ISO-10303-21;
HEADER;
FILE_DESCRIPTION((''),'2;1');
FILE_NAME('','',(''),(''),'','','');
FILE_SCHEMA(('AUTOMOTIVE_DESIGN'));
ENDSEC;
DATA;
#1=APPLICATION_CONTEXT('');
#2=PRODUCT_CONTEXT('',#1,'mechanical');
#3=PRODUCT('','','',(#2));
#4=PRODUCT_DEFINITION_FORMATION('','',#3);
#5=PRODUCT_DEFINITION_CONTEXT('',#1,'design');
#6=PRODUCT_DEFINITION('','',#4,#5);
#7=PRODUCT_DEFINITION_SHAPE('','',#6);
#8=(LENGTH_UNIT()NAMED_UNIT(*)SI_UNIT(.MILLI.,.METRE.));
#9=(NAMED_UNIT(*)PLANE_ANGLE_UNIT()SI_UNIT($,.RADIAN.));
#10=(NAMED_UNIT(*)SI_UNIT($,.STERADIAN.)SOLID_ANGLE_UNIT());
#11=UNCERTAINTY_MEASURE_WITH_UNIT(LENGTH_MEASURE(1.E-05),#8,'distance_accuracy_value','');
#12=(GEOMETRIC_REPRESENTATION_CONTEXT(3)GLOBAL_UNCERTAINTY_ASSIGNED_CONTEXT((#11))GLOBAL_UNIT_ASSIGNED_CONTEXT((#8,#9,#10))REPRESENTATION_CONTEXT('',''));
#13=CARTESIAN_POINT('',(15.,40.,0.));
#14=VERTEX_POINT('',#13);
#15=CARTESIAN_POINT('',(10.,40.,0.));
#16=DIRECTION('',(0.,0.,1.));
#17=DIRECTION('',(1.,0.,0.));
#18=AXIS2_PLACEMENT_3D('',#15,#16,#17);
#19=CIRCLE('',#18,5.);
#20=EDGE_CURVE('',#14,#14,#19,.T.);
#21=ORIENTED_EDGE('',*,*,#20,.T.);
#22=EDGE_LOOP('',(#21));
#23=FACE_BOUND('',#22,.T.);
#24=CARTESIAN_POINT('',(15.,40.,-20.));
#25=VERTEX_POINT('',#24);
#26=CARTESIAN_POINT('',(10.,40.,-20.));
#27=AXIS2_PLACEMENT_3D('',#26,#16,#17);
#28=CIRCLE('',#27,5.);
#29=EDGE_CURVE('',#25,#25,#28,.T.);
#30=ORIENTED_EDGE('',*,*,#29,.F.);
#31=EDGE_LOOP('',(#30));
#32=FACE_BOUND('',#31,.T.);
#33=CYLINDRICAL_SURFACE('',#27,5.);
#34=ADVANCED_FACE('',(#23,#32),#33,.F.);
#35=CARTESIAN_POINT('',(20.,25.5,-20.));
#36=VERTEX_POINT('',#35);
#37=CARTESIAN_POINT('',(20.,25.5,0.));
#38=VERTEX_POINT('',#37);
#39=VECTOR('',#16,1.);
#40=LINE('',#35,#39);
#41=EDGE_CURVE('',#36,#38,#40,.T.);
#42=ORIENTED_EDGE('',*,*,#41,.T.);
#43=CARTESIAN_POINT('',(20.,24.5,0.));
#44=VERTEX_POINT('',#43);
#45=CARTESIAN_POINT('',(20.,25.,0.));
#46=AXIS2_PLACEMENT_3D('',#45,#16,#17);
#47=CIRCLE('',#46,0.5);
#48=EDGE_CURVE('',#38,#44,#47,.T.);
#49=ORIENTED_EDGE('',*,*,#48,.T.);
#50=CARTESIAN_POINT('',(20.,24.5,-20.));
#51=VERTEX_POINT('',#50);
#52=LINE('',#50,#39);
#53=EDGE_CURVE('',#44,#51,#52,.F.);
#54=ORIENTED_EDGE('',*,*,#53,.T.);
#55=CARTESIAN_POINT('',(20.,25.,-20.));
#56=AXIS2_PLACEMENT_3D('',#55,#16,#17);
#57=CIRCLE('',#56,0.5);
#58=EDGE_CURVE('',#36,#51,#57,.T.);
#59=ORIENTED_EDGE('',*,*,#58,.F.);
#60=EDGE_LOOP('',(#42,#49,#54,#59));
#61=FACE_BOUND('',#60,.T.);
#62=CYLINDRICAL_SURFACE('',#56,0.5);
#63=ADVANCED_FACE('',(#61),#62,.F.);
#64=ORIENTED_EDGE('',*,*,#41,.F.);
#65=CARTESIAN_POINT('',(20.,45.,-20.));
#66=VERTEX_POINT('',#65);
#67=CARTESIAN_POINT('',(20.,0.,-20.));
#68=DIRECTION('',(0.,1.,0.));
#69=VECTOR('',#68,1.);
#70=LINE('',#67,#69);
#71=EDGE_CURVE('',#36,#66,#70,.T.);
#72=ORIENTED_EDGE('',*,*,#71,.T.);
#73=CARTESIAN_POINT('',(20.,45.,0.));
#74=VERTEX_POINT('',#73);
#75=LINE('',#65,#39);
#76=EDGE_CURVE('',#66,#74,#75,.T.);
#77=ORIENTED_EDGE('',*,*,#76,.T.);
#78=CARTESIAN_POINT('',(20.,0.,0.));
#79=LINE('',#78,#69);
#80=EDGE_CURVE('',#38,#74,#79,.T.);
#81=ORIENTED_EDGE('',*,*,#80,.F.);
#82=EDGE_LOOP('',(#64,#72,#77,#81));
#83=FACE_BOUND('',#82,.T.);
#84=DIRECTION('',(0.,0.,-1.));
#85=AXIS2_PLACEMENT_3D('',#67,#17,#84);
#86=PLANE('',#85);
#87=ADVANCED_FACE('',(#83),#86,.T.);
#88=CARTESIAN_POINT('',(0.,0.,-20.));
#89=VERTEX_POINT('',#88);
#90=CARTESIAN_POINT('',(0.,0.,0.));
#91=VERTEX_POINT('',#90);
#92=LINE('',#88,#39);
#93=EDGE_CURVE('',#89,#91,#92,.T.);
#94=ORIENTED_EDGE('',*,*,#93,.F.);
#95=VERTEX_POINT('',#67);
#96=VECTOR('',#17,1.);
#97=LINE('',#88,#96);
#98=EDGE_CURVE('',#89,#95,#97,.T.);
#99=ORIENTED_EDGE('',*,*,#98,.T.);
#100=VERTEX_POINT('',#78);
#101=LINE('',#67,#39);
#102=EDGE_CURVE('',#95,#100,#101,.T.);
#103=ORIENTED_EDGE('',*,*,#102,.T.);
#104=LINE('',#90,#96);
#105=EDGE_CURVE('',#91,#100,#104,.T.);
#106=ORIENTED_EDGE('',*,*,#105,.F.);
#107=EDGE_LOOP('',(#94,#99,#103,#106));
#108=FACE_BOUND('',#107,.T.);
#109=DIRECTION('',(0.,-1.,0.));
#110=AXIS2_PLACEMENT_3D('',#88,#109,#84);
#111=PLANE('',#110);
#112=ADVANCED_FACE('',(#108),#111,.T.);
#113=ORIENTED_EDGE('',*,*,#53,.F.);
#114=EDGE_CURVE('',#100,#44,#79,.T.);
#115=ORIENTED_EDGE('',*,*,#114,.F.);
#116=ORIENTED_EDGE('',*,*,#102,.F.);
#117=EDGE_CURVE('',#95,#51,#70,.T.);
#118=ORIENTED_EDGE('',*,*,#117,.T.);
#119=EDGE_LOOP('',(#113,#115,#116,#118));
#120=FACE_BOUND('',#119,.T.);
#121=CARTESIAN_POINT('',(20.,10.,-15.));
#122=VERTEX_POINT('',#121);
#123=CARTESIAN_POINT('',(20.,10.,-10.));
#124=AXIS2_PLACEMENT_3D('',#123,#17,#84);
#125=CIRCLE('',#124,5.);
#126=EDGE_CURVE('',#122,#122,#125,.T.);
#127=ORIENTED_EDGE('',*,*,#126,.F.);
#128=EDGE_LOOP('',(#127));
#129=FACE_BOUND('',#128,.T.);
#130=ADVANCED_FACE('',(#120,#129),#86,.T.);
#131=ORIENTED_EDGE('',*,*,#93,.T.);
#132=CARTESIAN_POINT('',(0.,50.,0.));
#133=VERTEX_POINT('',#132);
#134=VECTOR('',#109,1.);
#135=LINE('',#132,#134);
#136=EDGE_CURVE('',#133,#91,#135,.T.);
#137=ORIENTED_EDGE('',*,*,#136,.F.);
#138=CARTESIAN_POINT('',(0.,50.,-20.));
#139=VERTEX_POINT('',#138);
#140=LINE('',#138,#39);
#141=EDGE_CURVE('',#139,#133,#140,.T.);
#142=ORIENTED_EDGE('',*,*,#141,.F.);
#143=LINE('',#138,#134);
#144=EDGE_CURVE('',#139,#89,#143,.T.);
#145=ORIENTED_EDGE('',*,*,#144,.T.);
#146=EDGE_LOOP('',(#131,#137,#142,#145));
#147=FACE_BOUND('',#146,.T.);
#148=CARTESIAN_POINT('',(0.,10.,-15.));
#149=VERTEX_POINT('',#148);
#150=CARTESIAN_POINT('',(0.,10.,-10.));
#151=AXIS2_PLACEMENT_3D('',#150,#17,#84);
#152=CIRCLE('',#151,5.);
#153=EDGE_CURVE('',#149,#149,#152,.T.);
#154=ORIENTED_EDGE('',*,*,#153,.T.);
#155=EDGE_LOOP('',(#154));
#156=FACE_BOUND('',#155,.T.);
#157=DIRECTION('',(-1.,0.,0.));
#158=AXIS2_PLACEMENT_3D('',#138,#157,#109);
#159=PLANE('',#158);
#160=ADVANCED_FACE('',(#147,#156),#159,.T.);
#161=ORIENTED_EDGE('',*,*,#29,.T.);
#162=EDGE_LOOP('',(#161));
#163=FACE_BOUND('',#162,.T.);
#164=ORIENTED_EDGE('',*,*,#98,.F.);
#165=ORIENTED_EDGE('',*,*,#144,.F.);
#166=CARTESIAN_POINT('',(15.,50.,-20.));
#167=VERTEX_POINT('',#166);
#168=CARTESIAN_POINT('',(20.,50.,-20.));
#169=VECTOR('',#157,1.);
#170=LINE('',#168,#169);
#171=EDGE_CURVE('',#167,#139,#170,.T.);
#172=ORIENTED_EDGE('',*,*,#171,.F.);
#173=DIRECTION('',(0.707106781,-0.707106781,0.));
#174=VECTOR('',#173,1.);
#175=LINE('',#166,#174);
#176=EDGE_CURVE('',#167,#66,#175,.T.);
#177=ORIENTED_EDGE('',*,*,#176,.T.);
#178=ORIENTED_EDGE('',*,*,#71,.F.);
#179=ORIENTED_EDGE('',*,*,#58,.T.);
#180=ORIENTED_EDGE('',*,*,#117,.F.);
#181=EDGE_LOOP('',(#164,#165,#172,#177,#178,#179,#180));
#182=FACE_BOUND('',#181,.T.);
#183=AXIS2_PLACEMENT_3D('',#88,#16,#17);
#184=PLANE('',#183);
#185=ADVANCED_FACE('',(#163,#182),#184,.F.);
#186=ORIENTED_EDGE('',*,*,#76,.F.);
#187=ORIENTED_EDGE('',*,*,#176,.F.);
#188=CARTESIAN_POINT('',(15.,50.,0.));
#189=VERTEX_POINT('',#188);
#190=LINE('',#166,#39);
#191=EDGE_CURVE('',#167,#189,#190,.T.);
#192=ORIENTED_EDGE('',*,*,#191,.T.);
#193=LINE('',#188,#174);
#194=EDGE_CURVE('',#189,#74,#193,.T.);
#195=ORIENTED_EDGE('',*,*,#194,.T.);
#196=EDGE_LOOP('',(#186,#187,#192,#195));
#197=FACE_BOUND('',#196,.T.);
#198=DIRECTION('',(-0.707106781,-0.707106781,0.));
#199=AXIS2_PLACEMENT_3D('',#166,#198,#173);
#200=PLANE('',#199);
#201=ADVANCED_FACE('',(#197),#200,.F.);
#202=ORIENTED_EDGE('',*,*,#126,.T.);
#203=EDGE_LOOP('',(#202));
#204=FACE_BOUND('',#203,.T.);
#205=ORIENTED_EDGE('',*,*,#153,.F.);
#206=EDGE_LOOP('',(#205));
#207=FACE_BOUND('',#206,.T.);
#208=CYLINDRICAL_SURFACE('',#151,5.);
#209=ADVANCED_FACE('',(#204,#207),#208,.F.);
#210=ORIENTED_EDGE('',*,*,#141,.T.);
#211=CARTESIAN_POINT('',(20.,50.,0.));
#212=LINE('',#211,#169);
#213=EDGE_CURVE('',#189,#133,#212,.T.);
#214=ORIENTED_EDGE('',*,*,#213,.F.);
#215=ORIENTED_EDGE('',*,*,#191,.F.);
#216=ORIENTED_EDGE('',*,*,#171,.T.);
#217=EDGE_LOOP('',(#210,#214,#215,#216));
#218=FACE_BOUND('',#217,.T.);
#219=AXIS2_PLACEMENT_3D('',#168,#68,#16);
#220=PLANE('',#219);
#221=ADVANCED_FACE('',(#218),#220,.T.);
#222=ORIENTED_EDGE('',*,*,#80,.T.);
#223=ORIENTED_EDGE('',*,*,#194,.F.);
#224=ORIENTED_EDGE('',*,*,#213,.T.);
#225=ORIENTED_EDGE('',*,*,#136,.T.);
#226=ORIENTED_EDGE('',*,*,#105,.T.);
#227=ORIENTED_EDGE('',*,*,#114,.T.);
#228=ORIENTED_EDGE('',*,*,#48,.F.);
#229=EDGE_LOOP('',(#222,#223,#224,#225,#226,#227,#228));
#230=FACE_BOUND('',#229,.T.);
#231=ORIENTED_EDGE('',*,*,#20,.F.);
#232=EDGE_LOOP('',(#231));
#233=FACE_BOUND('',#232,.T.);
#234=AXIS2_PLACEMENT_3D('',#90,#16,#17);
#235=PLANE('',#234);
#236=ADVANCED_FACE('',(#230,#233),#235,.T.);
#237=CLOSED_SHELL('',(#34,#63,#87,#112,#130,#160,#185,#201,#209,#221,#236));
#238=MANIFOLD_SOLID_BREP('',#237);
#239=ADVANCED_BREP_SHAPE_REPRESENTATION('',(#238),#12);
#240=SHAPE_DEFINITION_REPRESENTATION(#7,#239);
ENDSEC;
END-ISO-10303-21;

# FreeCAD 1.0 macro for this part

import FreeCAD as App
import Part
import Sketcher

doc = App.newDocument("Part")
body = doc.addObject("PartDesign::Body", "Body")

# Sketch on XY plane
sketch1 = body.newObject("Sketcher::SketchObject", "Sketch")
sketch1.AttachmentSupport = (doc.getObject("XY_Plane"), [""])
sketch1.MapMode = "FlatFace"
sketch1.addGeometry(Part.LineSegment(App.Vector(0, 50, 0), App.Vector(0, 0, 0)), False)
sketch1.addGeometry(Part.LineSegment(App.Vector(0, 0, 0), App.Vector(20, 0, 0)), False)
sketch1.addGeometry(Part.LineSegment(App.Vector(20, 0, 0), App.Vector(20, 50, 0)), False)
sketch1.addGeometry(Part.LineSegment(App.Vector(20, 50, 0), App.Vector(0, 50, 0)), False)
sketch1.addConstraint(Sketcher.Constraint("Coincident", 0, 2, 1, 1))
sketch1.addConstraint(Sketcher.Constraint("Coincident", 1, 2, 2, 1))
sketch1.addConstraint(Sketcher.Constraint("Coincident", 2, 2, 3, 1))
sketch1.addConstraint(Sketcher.Constraint("Coincident", 3, 2, 0, 1))
sketch1.addConstraint(Sketcher.Constraint("Vertical", 0))
sketch1.addConstraint(Sketcher.Constraint("Horizontal", 1))
sketch1.addConstraint(Sketcher.Constraint("Vertical", 2))
sketch1.addConstraint(Sketcher.Constraint("Horizontal", 3))
sketch1.addConstraint(Sketcher.Constraint("Coincident", 0, 2, -1, 1))
sketch1.addConstraint(Sketcher.Constraint("DistanceX", 1, 1, 1, 2, 20.0))
sketch1.addConstraint(Sketcher.Constraint("DistanceY", 0, 2, 0, 1, 50.0))
pad1 = body.newObject("PartDesign::Pad", "Pad")
pad1.Profile = sketch1
pad1.Length = 20
pad1.Reversed = True

# Sketch on XY plane
sketch2 = body.newObject("Sketcher::SketchObject", "Sketch001")
sketch2.AttachmentSupport = (doc.getObject("XY_Plane"), [""])
sketch2.MapMode = "FlatFace"
sketch2.addGeometry(Part.LineSegment(App.Vector(20, 45, 0), App.Vector(20, 50, 0)), False)
sketch2.addGeometry(Part.LineSegment(App.Vector(20, 50, 0), App.Vector(15, 50, 0)), False)
sketch2.addGeometry(Part.LineSegment(App.Vector(15, 50, 0), App.Vector(20, 45, 0)), False)
sketch2.addConstraint(Sketcher.Constraint("Coincident", 0, 2, 1, 1))
sketch2.addConstraint(Sketcher.Constraint("Coincident", 1, 2, 2, 1))
sketch2.addConstraint(Sketcher.Constraint("Coincident", 2, 2, 0, 1))
sketch2.addConstraint(Sketcher.Constraint("Vertical", 0))
sketch2.addConstraint(Sketcher.Constraint("Horizontal", 1))
sketch2.addConstraint(Sketcher.Constraint("Equal", 1, 0))
sketch2.addConstraint(Sketcher.Constraint("DistanceX", 1, 2, 1, 1, 5.0))
sketch2.addConstraint(Sketcher.Constraint("DistanceX", -1, 1, 0, 2, 20.0))
sketch2.addConstraint(Sketcher.Constraint("DistanceY", -1, 1, 0, 2, 50.0))
pocket1 = body.newObject("PartDesign::Pocket", "Pocket")
pocket1.Profile = sketch2
pocket1.Type = "ThroughAll"

# Sketch on YZ plane
sketch3 = body.newObject("Sketcher::SketchObject", "Sketch002")
sketch3.AttachmentSupport = (doc.getObject("YZ_Plane"), [""])
sketch3.MapMode = "FlatFace"
sketch3.AttachmentOffset = App.Placement(App.Vector(0, 0, 20), App.Rotation())
sketch3.addGeometry(Part.Circle(App.Vector(10, -10, 0), App.Vector(0, 0, 1), 5), False)
sketch3.addConstraint(Sketcher.Constraint("Diameter", 0, 10.0))
sketch3.addConstraint(Sketcher.Constraint("DistanceX", -1, 1, 0, 3, 10.0))
sketch3.addConstraint(Sketcher.Constraint("DistanceY", 0, 3, -1, 1, 10.0))
pocket2 = body.newObject("PartDesign::Pocket", "Pocket001")
pocket2.Profile = sketch3
pocket2.Type = "ThroughAll"

# Sketch on XY plane
sketch4 = body.newObject("Sketcher::SketchObject", "Sketch003")
sketch4.AttachmentSupport = (doc.getObject("XY_Plane"), [""])
sketch4.MapMode = "FlatFace"
sketch4.addGeometry(Part.Circle(App.Vector(10, 40, 0), App.Vector(0, 0, 1), 5), False)
sketch4.addConstraint(Sketcher.Constraint("Diameter", 0, 10.0))
sketch4.addConstraint(Sketcher.Constraint("DistanceX", -1, 1, 0, 3, 10.0))
sketch4.addConstraint(Sketcher.Constraint("DistanceY", -1, 1, 0, 3, 40.0))
pocket3 = body.newObject("PartDesign::Pocket", "Pocket002")
pocket3.Profile = sketch4
pocket3.Type = "ThroughAll"

# Sketch on XY plane
sketch5 = body.newObject("Sketcher::SketchObject", "Sketch004")
sketch5.AttachmentSupport = (doc.getObject("XY_Plane"), [""])
sketch5.MapMode = "FlatFace"
sketch5.addGeometry(Part.Circle(App.Vector(20, 25, 0), App.Vector(0, 0, 1), 0.5), False)
sketch5.addConstraint(Sketcher.Constraint("Diameter", 0, 1.0))
sketch5.addConstraint(Sketcher.Constraint("DistanceX", -1, 1, 0, 3, 20.0))
sketch5.addConstraint(Sketcher.Constraint("DistanceY", -1, 1, 0, 3, 25.0))
pocket4 = body.newObject("PartDesign::Pocket", "Pocket003")
pocket4.Profile = sketch5
pocket4.Type = "ThroughAll"

doc.recompute()
